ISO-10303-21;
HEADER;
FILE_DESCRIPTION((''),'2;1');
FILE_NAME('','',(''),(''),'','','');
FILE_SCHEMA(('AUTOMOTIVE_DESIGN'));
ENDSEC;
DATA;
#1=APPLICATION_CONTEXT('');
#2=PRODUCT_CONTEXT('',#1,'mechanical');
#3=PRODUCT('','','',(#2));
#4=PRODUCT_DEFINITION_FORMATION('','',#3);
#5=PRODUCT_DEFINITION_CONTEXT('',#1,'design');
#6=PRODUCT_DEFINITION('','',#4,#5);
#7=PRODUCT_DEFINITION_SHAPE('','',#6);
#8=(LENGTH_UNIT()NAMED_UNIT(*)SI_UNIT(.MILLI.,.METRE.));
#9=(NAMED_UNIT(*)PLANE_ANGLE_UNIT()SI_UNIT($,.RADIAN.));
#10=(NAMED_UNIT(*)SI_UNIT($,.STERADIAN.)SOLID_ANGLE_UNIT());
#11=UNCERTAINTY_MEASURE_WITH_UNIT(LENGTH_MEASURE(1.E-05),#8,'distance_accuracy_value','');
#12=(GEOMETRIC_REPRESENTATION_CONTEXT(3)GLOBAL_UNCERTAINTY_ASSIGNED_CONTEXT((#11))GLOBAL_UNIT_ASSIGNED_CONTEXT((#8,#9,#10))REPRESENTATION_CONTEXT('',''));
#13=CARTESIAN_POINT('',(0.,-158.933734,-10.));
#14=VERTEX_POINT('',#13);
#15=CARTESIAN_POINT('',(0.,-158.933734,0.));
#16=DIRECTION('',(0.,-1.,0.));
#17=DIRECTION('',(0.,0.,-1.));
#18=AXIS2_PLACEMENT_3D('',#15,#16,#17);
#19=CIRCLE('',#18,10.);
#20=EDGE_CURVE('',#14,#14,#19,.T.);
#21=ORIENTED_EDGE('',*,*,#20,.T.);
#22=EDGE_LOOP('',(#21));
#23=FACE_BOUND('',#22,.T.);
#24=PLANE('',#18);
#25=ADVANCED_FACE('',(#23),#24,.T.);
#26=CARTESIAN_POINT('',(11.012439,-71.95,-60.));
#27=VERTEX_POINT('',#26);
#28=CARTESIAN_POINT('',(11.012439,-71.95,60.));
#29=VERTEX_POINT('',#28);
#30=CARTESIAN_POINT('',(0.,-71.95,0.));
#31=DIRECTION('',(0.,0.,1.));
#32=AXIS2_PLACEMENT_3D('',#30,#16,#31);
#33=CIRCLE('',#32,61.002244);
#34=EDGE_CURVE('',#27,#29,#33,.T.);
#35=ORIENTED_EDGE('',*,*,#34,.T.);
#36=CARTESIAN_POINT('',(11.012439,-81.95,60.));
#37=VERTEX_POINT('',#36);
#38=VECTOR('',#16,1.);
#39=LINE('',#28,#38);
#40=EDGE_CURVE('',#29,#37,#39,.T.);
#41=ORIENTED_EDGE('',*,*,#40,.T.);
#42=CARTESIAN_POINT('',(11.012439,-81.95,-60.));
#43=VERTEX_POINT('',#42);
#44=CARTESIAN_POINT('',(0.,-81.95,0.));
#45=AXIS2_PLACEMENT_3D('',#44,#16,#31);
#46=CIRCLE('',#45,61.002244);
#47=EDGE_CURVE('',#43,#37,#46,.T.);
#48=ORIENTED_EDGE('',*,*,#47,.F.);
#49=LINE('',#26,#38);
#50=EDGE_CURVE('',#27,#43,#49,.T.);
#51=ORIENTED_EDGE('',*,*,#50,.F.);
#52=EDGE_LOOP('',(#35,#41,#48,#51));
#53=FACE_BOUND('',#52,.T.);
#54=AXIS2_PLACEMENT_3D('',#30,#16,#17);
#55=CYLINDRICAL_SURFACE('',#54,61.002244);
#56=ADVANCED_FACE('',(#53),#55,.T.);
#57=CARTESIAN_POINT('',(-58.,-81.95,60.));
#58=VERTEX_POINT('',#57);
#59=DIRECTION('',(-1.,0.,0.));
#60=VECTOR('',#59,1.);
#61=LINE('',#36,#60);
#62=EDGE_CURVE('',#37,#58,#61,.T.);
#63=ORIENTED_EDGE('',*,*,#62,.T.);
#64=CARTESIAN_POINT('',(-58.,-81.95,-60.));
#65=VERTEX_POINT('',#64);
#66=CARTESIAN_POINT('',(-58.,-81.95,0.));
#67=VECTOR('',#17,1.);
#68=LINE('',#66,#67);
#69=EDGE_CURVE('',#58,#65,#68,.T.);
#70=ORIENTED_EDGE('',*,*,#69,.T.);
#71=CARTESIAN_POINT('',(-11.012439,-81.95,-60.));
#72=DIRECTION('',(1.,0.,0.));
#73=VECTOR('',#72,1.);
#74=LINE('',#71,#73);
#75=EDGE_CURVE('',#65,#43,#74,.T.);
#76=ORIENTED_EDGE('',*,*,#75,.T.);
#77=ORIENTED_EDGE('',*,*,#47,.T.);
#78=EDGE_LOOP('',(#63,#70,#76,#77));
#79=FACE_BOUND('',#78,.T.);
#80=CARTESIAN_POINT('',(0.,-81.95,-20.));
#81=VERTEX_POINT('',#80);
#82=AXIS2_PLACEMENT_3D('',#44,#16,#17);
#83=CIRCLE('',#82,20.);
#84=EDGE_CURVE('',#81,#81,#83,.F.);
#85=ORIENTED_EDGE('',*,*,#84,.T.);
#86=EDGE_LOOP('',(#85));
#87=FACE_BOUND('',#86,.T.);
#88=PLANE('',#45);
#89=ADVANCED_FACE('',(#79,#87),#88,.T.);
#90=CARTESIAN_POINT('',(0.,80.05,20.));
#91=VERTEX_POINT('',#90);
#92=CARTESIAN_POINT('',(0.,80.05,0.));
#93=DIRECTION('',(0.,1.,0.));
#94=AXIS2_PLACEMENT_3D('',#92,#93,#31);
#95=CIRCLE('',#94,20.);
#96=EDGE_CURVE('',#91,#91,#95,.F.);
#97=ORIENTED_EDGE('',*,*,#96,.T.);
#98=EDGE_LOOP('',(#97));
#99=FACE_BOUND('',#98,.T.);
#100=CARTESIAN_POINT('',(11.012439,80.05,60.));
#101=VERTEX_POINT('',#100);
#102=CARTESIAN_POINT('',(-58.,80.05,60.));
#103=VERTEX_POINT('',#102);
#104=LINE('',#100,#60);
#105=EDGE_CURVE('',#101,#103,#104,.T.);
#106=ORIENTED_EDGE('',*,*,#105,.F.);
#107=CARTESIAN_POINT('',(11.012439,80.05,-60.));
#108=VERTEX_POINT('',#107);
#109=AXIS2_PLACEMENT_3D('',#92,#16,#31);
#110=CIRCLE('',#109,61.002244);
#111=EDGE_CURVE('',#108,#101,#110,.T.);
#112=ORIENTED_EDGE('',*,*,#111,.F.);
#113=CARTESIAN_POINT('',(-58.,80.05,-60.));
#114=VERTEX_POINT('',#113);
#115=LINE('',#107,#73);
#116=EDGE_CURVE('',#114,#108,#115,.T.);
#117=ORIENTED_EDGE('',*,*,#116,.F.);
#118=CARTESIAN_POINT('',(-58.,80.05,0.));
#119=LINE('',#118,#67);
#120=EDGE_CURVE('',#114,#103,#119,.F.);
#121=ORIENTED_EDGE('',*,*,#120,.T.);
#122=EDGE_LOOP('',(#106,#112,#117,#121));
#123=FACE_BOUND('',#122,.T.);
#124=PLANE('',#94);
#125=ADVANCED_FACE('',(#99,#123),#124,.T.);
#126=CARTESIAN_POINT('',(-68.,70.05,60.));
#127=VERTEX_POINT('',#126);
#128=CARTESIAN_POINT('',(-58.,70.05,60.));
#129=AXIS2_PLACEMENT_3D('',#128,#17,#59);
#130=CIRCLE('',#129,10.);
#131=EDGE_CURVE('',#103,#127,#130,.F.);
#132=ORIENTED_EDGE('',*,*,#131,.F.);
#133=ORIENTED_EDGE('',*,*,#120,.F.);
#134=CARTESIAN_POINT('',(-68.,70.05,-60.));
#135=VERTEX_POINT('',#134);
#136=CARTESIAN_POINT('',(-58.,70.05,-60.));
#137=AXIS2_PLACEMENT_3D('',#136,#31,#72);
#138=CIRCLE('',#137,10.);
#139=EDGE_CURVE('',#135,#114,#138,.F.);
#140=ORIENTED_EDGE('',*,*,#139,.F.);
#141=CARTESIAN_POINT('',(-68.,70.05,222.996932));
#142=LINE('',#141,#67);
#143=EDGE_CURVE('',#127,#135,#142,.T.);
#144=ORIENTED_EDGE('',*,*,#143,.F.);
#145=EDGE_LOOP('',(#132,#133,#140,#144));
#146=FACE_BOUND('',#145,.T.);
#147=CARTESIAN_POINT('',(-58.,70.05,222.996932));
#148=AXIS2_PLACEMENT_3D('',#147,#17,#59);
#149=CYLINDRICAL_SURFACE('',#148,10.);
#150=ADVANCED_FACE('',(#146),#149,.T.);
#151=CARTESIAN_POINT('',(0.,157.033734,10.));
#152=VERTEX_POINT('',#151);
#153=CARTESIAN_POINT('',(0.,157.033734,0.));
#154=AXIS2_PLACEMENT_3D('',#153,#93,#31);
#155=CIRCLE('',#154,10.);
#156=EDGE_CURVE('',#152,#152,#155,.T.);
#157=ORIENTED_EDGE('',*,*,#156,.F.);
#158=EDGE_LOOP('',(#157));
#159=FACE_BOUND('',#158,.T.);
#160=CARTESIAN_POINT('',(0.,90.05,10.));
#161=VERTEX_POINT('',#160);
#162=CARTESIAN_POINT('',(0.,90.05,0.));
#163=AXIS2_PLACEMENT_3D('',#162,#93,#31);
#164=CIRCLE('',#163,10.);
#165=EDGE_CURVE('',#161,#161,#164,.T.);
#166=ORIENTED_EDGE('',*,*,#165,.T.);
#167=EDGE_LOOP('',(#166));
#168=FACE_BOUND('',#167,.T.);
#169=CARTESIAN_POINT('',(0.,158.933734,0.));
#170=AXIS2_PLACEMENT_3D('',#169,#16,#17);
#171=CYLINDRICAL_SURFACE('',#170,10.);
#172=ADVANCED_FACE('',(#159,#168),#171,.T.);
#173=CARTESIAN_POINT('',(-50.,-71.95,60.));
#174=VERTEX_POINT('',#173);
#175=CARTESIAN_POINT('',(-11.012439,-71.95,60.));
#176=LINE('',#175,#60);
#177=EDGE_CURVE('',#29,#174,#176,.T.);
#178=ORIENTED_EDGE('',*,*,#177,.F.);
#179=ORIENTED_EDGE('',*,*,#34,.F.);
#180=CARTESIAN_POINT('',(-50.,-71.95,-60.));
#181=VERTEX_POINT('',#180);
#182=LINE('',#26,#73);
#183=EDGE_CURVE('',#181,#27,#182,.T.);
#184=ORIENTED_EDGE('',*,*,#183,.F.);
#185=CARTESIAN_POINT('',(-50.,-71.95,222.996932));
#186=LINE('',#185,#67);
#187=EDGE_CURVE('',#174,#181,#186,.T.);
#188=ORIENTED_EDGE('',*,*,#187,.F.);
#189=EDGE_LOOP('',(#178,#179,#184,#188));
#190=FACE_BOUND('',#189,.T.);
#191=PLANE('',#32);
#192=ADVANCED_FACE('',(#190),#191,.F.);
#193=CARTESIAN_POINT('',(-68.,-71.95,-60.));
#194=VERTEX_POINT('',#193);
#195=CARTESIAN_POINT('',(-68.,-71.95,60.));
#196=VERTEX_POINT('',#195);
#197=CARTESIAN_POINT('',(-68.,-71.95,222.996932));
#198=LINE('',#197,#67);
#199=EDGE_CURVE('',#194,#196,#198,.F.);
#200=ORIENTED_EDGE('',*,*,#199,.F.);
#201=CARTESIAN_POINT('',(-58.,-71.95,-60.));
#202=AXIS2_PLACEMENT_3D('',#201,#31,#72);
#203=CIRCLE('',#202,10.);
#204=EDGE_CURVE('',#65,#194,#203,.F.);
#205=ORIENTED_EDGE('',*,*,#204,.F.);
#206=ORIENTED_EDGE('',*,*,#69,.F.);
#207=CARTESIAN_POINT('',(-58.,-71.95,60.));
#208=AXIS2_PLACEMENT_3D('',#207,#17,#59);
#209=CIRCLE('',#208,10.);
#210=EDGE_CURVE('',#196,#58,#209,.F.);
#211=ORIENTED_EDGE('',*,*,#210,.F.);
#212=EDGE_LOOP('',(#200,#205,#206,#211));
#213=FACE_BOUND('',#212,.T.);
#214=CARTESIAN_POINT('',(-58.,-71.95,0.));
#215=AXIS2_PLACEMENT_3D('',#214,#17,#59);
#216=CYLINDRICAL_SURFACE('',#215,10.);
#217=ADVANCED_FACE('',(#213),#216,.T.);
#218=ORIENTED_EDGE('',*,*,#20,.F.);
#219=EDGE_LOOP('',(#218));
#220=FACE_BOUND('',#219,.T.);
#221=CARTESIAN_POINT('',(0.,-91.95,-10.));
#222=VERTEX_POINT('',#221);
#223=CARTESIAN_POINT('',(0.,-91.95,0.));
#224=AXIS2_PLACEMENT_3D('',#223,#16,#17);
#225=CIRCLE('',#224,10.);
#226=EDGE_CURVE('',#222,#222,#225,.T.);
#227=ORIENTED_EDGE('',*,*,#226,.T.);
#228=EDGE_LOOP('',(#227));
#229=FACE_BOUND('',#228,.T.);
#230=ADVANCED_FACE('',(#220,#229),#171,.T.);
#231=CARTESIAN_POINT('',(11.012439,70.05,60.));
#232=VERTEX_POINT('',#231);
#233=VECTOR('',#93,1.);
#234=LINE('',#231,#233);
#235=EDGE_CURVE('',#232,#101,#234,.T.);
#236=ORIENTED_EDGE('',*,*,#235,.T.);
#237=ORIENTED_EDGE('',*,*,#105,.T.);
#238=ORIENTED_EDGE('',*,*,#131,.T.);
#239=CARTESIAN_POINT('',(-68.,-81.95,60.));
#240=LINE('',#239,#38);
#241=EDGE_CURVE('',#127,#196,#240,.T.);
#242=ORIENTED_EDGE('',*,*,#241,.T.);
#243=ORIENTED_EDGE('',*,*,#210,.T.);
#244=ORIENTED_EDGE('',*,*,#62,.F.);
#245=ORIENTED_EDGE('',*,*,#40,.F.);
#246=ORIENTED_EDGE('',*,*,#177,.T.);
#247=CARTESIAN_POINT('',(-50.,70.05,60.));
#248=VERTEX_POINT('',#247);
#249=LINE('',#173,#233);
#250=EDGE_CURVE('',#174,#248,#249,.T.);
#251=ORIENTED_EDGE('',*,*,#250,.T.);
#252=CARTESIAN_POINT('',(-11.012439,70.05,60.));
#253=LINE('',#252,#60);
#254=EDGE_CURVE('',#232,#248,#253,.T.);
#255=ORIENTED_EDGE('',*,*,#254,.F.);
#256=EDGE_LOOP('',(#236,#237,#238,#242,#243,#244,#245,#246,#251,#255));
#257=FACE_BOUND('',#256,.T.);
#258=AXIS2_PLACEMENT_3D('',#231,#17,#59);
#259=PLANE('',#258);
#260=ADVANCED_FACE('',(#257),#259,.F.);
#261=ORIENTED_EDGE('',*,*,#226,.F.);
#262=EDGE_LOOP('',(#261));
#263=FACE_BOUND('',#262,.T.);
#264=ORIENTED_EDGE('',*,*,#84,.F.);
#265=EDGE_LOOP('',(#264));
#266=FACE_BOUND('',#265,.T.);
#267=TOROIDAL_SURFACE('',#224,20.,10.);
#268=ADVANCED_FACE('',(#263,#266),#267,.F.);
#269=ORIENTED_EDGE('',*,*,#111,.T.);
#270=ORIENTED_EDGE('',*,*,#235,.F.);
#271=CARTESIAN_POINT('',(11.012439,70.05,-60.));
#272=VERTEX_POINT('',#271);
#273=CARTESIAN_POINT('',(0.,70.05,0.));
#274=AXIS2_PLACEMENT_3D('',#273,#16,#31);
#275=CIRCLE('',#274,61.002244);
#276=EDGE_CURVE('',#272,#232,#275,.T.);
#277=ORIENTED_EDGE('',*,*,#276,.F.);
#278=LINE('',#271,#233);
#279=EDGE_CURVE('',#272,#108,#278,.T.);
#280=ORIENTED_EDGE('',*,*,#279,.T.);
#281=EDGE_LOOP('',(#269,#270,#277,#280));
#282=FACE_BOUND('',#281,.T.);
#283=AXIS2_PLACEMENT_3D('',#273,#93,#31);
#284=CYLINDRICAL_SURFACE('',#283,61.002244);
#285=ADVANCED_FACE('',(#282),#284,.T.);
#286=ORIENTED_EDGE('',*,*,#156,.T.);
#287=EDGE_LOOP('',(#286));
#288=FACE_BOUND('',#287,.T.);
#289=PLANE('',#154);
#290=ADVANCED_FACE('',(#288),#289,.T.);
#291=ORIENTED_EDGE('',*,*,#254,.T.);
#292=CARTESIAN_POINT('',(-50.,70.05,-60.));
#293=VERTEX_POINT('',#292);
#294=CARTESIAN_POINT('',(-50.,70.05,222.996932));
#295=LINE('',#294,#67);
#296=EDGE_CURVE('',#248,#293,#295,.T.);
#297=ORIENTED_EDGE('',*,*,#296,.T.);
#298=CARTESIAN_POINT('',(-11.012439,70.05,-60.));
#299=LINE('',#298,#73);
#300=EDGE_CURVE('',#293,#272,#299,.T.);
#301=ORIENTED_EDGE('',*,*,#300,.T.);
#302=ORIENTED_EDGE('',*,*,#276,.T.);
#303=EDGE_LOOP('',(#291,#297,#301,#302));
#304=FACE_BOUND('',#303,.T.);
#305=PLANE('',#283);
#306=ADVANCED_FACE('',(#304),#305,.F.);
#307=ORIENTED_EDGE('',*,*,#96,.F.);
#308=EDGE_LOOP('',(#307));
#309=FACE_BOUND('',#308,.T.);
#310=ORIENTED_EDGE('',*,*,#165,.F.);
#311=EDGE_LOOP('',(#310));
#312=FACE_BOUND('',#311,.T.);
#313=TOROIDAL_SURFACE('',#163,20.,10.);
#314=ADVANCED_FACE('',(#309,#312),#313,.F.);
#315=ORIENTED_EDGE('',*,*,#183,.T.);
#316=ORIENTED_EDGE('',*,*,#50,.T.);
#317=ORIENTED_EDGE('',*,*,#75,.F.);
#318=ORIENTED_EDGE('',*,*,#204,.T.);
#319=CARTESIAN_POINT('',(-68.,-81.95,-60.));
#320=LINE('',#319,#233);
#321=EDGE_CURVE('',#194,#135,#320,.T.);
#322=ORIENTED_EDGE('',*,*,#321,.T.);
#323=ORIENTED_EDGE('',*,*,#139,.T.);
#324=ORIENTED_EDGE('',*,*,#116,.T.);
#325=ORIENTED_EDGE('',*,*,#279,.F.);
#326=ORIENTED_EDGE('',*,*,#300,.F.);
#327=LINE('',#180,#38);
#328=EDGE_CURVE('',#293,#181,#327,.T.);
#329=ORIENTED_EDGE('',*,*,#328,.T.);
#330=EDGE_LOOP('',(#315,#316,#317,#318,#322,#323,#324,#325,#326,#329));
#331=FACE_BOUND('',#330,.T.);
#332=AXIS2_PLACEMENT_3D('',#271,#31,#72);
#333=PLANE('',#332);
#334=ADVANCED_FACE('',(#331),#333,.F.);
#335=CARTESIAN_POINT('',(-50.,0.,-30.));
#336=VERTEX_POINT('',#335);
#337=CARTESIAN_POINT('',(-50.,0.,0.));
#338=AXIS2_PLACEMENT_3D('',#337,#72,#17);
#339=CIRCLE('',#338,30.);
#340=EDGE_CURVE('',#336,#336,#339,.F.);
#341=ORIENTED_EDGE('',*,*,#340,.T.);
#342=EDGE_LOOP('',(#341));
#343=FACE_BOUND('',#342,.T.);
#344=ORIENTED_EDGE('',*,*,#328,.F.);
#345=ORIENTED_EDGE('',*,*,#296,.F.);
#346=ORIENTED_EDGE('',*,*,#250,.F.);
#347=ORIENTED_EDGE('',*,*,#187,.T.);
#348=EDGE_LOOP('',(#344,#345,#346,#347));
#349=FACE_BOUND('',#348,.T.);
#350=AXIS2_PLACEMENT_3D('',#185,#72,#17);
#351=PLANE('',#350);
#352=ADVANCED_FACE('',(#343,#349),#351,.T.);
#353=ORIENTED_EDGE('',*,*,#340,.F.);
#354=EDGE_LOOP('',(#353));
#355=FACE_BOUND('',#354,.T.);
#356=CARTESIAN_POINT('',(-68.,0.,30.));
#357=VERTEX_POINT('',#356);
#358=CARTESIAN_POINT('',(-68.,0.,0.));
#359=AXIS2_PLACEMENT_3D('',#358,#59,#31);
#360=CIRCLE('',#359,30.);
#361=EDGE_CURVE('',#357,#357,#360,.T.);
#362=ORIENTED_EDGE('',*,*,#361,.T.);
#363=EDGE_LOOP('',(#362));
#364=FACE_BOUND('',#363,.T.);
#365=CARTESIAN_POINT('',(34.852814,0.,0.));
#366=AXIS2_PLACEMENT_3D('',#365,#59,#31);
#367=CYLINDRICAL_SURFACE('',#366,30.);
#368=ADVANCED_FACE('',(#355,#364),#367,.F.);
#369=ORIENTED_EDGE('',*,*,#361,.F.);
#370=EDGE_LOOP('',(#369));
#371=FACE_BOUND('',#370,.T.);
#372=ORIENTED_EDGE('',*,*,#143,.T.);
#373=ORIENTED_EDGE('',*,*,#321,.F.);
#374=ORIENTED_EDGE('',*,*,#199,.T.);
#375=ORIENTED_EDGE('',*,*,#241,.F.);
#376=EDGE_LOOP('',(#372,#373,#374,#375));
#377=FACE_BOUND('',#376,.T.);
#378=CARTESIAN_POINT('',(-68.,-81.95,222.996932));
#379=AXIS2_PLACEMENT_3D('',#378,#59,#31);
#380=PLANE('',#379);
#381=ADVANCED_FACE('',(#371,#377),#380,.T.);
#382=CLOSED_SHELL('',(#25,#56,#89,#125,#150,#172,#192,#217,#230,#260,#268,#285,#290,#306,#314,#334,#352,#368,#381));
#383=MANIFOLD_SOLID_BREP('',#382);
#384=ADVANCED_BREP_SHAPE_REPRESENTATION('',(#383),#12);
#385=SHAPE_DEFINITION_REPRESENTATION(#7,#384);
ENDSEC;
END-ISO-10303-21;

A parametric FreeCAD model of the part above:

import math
import FreeCAD as App
import Part
import Sketcher
from FreeCAD import Vector
Q = App.Units.Quantity


def edges_at(feature, points):
    """Names of the edges that pass closest to the given points."""
    edges = feature.Shape.Edges
    near = lambda p: min(range(len(edges)), key=lambda i: edges[i].distToShape(Part.Vertex(*p))[0])
    return sorted({f"Edge{near(p) + 1}" for p in points})

doc = App.newDocument("Part")
body = doc.addObject("PartDesign::Body", "Body")

# Sketch on XZ plane
sketch1 = body.newObject("Sketcher::SketchObject", "Sketch")
sketch1.AttachmentSupport = (doc.getObject("XZ_Plane"), [""])
sketch1.MapMode = "FlatFace"
sketch1.AttachmentOffset = App.Placement(Vector(0, 0, -158.933734), App.Rotation())
sketch1.addGeometry(Part.Circle(Vector(0, 0, 0), Vector(0, 0, 1), 10), False)
sketch1.addConstraint([
    Sketcher.Constraint("Coincident", 0, 3, -1, 1),
    Sketcher.Constraint("Diameter", 0, Q("20 mm")),
])

# Sketch on XY plane
sketch2 = body.newObject("Sketcher::SketchObject", "Sketch001")
sketch2.AttachmentSupport = (doc.getObject("XY_Plane"), [""])
sketch2.MapMode = "FlatFace"
sketch2.addGeometry(Part.LineSegment(Vector(0, 159, 0), Vector(0, -159, 0)), False)
sketch2.addConstraint([
    Sketcher.Constraint("Vertical", 0),
    Sketcher.Constraint("Symmetric", 0, 1, 0, 2, -1, 1),
    Sketcher.Constraint("DistanceY", 0, 2, 0, 1, Q("317.867468 mm")),
])
doc.recompute()

additivepipe = body.newObject("PartDesign::AdditivePipe", "AdditivePipe")
additivepipe.Profile = sketch1
additivepipe.Spine = (sketch2, ["Edge1"])

# Sketch on XZ plane
sketch3 = body.newObject("Sketcher::SketchObject", "Sketch002")
sketch3.AttachmentSupport = (doc.getObject("XZ_Plane"), [""])
sketch3.MapMode = "FlatFace"
sketch3.AttachmentOffset = App.Placement(Vector(0, 0, -153.033734), App.Rotation())
sketch3.addGeometry(Part.Circle(Vector(0, 0, 0), Vector(0, 0, 1), 10), False)
sketch3.addConstraint([
    Sketcher.Constraint("Coincident", 0, 3, -1, 1),
    Sketcher.Constraint("Diameter", 0, Q("20 mm")),
])
pocket1 = body.newObject("PartDesign::Pocket", "Pocket")
pocket1.Profile = sketch3
pocket1.Length = 5.9

# Sketch on XZ plane
sketch4 = body.newObject("Sketcher::SketchObject", "Sketch003")
sketch4.AttachmentSupport = (doc.getObject("XZ_Plane"), [""])
sketch4.MapMode = "FlatFace"
sketch4.AttachmentOffset = App.Placement(Vector(0, 0, -153.033734), App.Rotation())
sketch4.addGeometry(Part.Circle(Vector(0, 0, 0), Vector(0, 0, 1), 10), False)
sketch4.addConstraint([
    Sketcher.Constraint("Coincident", 0, 3, -1, 1),
    Sketcher.Constraint("Diameter", 0, Q("20 mm")),
])
pad1 = body.newObject("PartDesign::Pad", "Pad")
pad1.Profile = sketch4
pad1.Length = 4
pad1.Reversed = True

# Sketch on XZ plane
sketch5 = body.newObject("Sketcher::SketchObject", "Sketch004")
sketch5.AttachmentSupport = (doc.getObject("XZ_Plane"), [""])
sketch5.MapMode = "FlatFace"
sketch5.AttachmentOffset = App.Placement(Vector(0, 0, -80.05), App.Rotation())
sketch5.addGeometry([
    Part.LineSegment(Vector(-60, 60, 0), Vector(-60, -60, 0)),
    Part.LineSegment(Vector(-60, -60, 0), Vector(11, -60, 0)),
    Part.ArcOfCircle(Part.Circle(Vector(0, 0, 0), Vector(0, 0, 1), 61), math.radians(-80), math.radians(80)),
    Part.LineSegment(Vector(11, 60, 0), Vector(-60, 60, 0)),
], False)
sketch5.addConstraint([
    Sketcher.Constraint("Coincident", 0, 2, 1, 1),
    Sketcher.Constraint("Coincident", 1, 2, 2, 1),
    Sketcher.Constraint("Coincident", 2, 2, 3, 1),
    Sketcher.Constraint("Coincident", 3, 2, 0, 1),
    Sketcher.Constraint("Vertical", 0),
    Sketcher.Constraint("Horizontal", 1),
    Sketcher.Constraint("Horizontal", 3),
    Sketcher.Constraint("Coincident", 2, 3, -1, 1),
    Sketcher.Constraint("Vertical", 1, 2, 2, 2),
    Sketcher.Constraint("DistanceY", 0, 2, 0, 1, Q("120 mm")),
    Sketcher.Constraint("DistanceX", 0, 2, -1, 1, Q("60 mm")),
    Sketcher.Constraint("Radius", 2, Q("61.002244 mm")),
])
pad2 = body.newObject("PartDesign::Pad", "Pad001")
pad2.Profile = sketch5
pad2.Length = 10
doc.recompute()

datumplane = body.newObject("PartDesign::Plane", "DatumPlane")
datumplane.AttachmentSupport = (doc.getObject("XZ_Plane"), [""])
datumplane.MapMode = "FlatFace"
datumplane.AttachmentOffset = App.Placement(Vector(0, 0, 0.95), App.Rotation())
mirrored = body.newObject("PartDesign::Mirrored", "Mirrored")
mirrored.Originals = [pad2]
mirrored.MirrorPlane = (datumplane, [""])
body.Tip = mirrored

# Sketch on XY plane
sketch6 = body.newObject("Sketcher::SketchObject", "Sketch005")
sketch6.AttachmentSupport = (doc.getObject("XY_Plane"), [""])
sketch6.MapMode = "FlatFace"
sketch6.AttachmentOffset = App.Placement(Vector(0, 0, -60), App.Rotation())
sketch6.addGeometry([
    Part.LineSegment(Vector(-50, -72, 0), Vector(-60, -72, 0)),  # 0
    Part.LineSegment(Vector(-60, -72, 0), Vector(-60, -82, 0)),  # 1
    Part.LineSegment(Vector(-60, -82, 0), Vector(-68, -82, 0)),  # 2
    Part.LineSegment(Vector(-68, -82, 0), Vector(-68, 80, 0)),  # 3
    Part.LineSegment(Vector(-68, 80, 0), Vector(-60, 80, 0)),  # 4
    Part.LineSegment(Vector(-60, 80, 0), Vector(-60, 70, 0)),  # 5
    Part.LineSegment(Vector(-60, 70, 0), Vector(-50, 70, 0)),  # 6
    Part.LineSegment(Vector(-50, 70, 0), Vector(-50, -72, 0)),  # 7
], False)
sketch6.addConstraint([
    Sketcher.Constraint("Coincident", 0, 2, 1, 1),
    Sketcher.Constraint("Coincident", 1, 2, 2, 1),
    Sketcher.Constraint("Coincident", 2, 2, 3, 1),
    Sketcher.Constraint("Coincident", 3, 2, 4, 1),
    Sketcher.Constraint("Coincident", 4, 2, 5, 1),
    Sketcher.Constraint("Coincident", 5, 2, 6, 1),
    Sketcher.Constraint("Coincident", 6, 2, 7, 1),
    Sketcher.Constraint("Coincident", 7, 2, 0, 1),
    Sketcher.Constraint("Horizontal", 0),
    Sketcher.Constraint("Vertical", 1),
    Sketcher.Constraint("Horizontal", 2),
    Sketcher.Constraint("Vertical", 3),
    Sketcher.Constraint("Horizontal", 4),
    Sketcher.Constraint("Vertical", 5),
    Sketcher.Constraint("Horizontal", 6),
    Sketcher.Constraint("Vertical", 7),
    Sketcher.Constraint("Vertical", 1, 2, 4, 2),
    Sketcher.Constraint("Equal", 6, 1),
    Sketcher.Constraint("Equal", 1, 5),
    Sketcher.Constraint("DistanceX", 0, 2, 0, 1, Q("10 mm")),
    Sketcher.Constraint("DistanceX", 2, 2, 2, 1, Q("8 mm")),
    Sketcher.Constraint("DistanceY", 3, 1, 3, 2, Q("162 mm")),
    Sketcher.Constraint("DistanceX", 0, 2, -1, 1, Q("60 mm")),
    Sketcher.Constraint("DistanceY", 0, 2, -1, 1, Q("71.95 mm")),
])
pad3 = body.newObject("PartDesign::Pad", "Pad002")
pad3.Profile = sketch6
pad3.Length = 120

# Sketch on YZ plane
sketch7 = body.newObject("Sketcher::SketchObject", "Sketch006")
sketch7.AttachmentSupport = (doc.getObject("YZ_Plane"), [""])
sketch7.MapMode = "FlatFace"
sketch7.AttachmentOffset = App.Placement(Vector(0, 0, -50), App.Rotation())
sketch7.addGeometry([
    Part.LineSegment(Vector(70, 60, 0), Vector(-72, 60, 0)),
    Part.LineSegment(Vector(-72, 60, 0), Vector(-72, -60, 0)),
    Part.LineSegment(Vector(-72, -60, 0), Vector(70, -60, 0)),
    Part.LineSegment(Vector(70, -60, 0), Vector(70, 60, 0)),
], False)
sketch7.addConstraint([
    Sketcher.Constraint("Coincident", 0, 2, 1, 1),
    Sketcher.Constraint("Coincident", 1, 2, 2, 1),
    Sketcher.Constraint("Coincident", 2, 2, 3, 1),
    Sketcher.Constraint("Coincident", 3, 2, 0, 1),
    Sketcher.Constraint("Horizontal", 0),
    Sketcher.Constraint("Vertical", 1),
    Sketcher.Constraint("Horizontal", 2),
    Sketcher.Constraint("Vertical", 3),
    Sketcher.Constraint("DistanceX", 0, 2, 0, 1, Q("142 mm")),
    Sketcher.Constraint("DistanceY", 1, 2, 1, 1, Q("120 mm")),
    Sketcher.Constraint("DistanceY", -1, 1, 0, 2, Q("60 mm")),
    Sketcher.Constraint("DistanceX", 0, 2, -1, 1, Q("71.95 mm")),
])
pocket2 = body.newObject("PartDesign::Pocket", "Pocket001")
pocket2.Profile = sketch7
pocket2.Type = "ThroughAll"
pocket2.Reversed = True

# Sketch on YZ plane
sketch8 = body.newObject("Sketcher::SketchObject", "Sketch007")
sketch8.AttachmentSupport = (doc.getObject("YZ_Plane"), [""])
sketch8.MapMode = "FlatFace"
sketch8.AttachmentOffset = App.Placement(Vector(0, 0, -68), App.Rotation())
sketch8.addGeometry(Part.Circle(Vector(0, 0, 0), Vector(0, 0, 1), 30), False)
sketch8.addConstraint([
    Sketcher.Constraint("Coincident", 0, 3, -1, 1),
    Sketcher.Constraint("Diameter", 0, Q("60 mm")),
])
pocket3 = body.newObject("PartDesign::Pocket", "Pocket002")
pocket3.Profile = sketch8
pocket3.Length = 18
pocket3.Reversed = True
doc.recompute()

fillet = body.newObject("PartDesign::Fillet", "Fillet")
fillet.Base = (pocket3, edges_at(pocket3, [
    (0, 80.05, 10),
    (0, -81.95, 10),
    (-68, 80.05, 0),
    (-68, -81.95, 0),
]))
fillet.Radius = 10

doc.recompute()
